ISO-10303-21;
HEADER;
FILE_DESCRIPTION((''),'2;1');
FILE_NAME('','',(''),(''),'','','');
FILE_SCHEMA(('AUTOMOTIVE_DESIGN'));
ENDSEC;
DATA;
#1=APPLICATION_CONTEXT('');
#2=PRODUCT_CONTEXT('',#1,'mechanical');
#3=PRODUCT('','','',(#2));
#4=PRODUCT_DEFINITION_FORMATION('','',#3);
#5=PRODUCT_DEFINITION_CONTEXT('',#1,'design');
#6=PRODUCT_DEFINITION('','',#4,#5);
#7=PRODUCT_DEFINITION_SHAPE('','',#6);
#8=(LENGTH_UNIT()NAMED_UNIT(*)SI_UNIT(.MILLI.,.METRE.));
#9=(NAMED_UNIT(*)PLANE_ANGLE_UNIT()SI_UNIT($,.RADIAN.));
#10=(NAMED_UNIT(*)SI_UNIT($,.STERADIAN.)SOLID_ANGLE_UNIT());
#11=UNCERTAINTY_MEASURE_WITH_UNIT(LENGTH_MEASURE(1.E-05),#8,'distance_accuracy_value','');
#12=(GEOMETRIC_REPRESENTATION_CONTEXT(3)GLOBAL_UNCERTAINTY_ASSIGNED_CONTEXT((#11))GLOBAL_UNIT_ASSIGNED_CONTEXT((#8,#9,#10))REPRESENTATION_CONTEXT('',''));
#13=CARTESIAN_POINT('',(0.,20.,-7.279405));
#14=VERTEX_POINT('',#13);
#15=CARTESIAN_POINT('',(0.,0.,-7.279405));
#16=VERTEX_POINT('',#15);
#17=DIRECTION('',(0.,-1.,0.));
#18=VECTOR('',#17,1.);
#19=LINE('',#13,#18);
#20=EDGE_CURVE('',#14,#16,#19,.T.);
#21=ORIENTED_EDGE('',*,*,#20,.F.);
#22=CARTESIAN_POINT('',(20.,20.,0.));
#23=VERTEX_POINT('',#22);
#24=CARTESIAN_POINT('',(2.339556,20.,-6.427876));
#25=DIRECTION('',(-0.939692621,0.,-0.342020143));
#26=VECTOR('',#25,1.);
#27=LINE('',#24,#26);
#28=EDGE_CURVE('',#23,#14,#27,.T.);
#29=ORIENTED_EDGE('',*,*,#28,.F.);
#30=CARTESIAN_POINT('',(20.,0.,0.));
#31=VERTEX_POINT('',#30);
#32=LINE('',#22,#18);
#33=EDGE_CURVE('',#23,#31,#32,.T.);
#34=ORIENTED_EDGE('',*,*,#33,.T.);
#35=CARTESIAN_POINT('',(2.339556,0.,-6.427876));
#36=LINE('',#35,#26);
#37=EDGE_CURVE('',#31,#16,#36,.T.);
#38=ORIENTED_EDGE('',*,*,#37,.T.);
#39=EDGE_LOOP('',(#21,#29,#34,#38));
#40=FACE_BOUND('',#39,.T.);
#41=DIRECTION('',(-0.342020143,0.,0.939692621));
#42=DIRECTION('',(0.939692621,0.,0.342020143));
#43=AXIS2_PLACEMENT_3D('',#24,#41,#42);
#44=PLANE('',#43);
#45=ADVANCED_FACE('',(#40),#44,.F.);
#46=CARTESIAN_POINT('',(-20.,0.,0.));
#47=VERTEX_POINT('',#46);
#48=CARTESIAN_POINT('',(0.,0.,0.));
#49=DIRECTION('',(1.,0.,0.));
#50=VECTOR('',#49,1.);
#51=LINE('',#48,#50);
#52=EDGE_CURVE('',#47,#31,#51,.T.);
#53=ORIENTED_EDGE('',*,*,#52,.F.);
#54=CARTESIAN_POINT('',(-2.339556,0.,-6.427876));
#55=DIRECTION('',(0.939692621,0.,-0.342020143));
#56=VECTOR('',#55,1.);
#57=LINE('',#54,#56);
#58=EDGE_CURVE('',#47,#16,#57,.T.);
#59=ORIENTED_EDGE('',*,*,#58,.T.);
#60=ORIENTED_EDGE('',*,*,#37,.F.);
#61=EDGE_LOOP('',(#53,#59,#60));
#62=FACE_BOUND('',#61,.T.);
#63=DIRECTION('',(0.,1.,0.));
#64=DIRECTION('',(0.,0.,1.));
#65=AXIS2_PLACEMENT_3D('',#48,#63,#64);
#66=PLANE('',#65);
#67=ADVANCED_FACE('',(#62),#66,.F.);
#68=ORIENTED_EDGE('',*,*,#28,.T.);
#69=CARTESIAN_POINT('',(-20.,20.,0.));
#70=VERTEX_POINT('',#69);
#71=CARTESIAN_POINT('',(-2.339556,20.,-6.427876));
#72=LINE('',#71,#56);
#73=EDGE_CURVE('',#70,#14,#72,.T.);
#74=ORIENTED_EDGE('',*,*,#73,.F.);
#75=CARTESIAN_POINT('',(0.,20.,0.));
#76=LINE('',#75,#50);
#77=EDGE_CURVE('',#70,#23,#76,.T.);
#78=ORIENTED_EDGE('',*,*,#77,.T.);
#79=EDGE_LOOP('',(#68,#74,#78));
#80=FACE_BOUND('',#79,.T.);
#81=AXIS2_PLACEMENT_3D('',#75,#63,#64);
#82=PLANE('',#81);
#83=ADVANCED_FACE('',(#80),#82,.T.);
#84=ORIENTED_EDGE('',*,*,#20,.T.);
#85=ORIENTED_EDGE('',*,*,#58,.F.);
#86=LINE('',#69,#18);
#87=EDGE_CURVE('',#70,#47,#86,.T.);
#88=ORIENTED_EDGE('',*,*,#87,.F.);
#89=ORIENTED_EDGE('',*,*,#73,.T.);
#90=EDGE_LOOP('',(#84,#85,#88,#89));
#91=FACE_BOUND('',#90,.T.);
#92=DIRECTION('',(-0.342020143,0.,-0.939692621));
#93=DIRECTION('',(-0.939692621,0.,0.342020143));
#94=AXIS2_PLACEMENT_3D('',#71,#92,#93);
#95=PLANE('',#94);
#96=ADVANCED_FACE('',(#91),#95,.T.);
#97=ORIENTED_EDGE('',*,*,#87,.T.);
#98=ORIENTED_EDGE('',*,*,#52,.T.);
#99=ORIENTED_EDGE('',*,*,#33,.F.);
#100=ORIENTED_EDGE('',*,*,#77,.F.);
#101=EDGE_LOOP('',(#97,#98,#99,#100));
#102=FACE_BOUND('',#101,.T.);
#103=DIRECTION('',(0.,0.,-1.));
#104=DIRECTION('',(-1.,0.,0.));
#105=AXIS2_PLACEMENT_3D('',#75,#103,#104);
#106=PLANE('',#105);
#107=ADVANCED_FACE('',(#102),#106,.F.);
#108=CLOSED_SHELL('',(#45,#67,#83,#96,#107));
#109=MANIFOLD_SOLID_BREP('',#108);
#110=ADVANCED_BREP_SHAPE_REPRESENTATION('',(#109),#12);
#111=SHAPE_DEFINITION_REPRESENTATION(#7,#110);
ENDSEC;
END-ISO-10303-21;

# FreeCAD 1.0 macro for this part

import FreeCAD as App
import Part
import Sketcher
from FreeCAD import Vector
Q = App.Units.Quantity


def add_polygon(sketch, points):
    """Adds a closed chain of lines whose ends are joined by coincident constraints."""
    first, n = sketch.GeometryCount, len(points)
    for a, b in zip(points, points[1:] + points[:1]):
        sketch.addGeometry(Part.LineSegment(App.Vector(*a, 0), App.Vector(*b, 0)), False)
    for i in range(n):
        sketch.addConstraint(Sketcher.Constraint("Coincident", first + i, 2, first + (i + 1) % n, 1))

doc = App.newDocument("Part")
body = doc.addObject("PartDesign::Body", "Body")

sketch1 = body.newObject("Sketcher::SketchObject", "Sketch")
sketch1.AttachmentSupport = (doc.getObject("XZ_Plane"), [""])
sketch1.MapMode = "FlatFace"
add_polygon(sketch1, [(0, -7), (-20, 0), (20, 0)])
sketch1.addConstraint([
    Sketcher.Constraint("Horizontal", 1),
    Sketcher.Constraint("Symmetric", 0, 2, 1, 2, -1, 1),
    Sketcher.Constraint("PointOnObject", 2, 2, -2),
    Sketcher.Constraint("DistanceX", 1, 1, 1, 2, Q("40 mm")),
    Sketcher.Constraint("Angle", 0, Q("160 deg")),
])
pad1 = body.newObject("PartDesign::Pad", "Pad")
pad1.Profile = sketch1
pad1.Length = 20
pad1.Reversed = True

doc.recompute()
